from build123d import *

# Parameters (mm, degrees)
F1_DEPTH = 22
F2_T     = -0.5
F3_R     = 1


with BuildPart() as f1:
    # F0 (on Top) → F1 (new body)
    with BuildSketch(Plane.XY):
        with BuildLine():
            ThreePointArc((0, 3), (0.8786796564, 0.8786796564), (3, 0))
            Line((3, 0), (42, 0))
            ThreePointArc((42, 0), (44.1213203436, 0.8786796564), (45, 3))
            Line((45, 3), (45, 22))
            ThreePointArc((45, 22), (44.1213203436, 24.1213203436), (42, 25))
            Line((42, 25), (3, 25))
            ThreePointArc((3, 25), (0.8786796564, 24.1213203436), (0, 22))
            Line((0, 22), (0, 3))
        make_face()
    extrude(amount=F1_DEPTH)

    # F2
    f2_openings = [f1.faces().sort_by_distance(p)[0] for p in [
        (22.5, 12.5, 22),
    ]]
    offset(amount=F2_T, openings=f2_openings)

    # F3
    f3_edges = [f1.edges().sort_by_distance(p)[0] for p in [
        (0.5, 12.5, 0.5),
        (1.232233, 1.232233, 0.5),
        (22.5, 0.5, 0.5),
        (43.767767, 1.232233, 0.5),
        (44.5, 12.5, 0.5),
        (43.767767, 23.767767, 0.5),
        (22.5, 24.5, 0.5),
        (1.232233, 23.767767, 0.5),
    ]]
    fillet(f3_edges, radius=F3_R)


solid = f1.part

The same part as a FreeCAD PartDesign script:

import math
import FreeCAD as App
import Part
import Sketcher
Q = App.Units.Quantity


def edges_at(feature, points):
    """Names of the edges that pass closest to the given points."""
    edges = feature.Shape.Edges
    near = lambda p: min(range(len(edges)), key=lambda i: edges[i].distToShape(Part.Vertex(*p))[0])
    return sorted({f"Edge{near(p) + 1}" for p in points})


def faces_at(feature, points):
    """Names of the faces that lie closest to the given points."""
    faces = feature.Shape.Faces
    near = lambda p: min(range(len(faces)), key=lambda i: faces[i].distToShape(Part.Vertex(*p))[0])
    return sorted({f"Face{near(p) + 1}" for p in points})

doc = App.newDocument("Part")
body = doc.addObject("PartDesign::Body", "Body")

# Sketch on XY plane
sketch1 = body.newObject("Sketcher::SketchObject", "Sketch")
sketch1.AttachmentSupport = (doc.getObject("XY_Plane"), [""])
sketch1.MapMode = "FlatFace"
sketch1.addGeometry(Part.ArcOfCircle(Part.Circle(App.Vector(3, 3, 0), App.Vector(0, 0, 1), 3), math.radians(180), math.radians(270)), False)
sketch1.addGeometry(Part.LineSegment(App.Vector(3, 0, 0), App.Vector(42, 0, 0)), False)
sketch1.addGeometry(Part.ArcOfCircle(Part.Circle(App.Vector(42, 3, 0), App.Vector(0, 0, 1), 3), math.radians(-90), math.radians(0)), False)
sketch1.addGeometry(Part.LineSegment(App.Vector(45, 3, 0), App.Vector(45, 22, 0)), False)
sketch1.addGeometry(Part.ArcOfCircle(Part.Circle(App.Vector(42, 22, 0), App.Vector(0, 0, 1), 3), math.radians(0), math.radians(90)), False)
sketch1.addGeometry(Part.LineSegment(App.Vector(42, 25, 0), App.Vector(3, 25, 0)), False)
sketch1.addGeometry(Part.ArcOfCircle(Part.Circle(App.Vector(3, 22, 0), App.Vector(0, 0, 1), 3), math.radians(90), math.radians(180)), False)
sketch1.addGeometry(Part.LineSegment(App.Vector(0, 22, 0), App.Vector(0, 3, 0)), False)
sketch1.addConstraint(Sketcher.Constraint("Tangent", 0, 2, 1, 1))
sketch1.addConstraint(Sketcher.Constraint("Tangent", 1, 2, 2, 1))
sketch1.addConstraint(Sketcher.Constraint("Tangent", 2, 2, 3, 1))
sketch1.addConstraint(Sketcher.Constraint("Tangent", 3, 2, 4, 1))
sketch1.addConstraint(Sketcher.Constraint("Tangent", 4, 2, 5, 1))
sketch1.addConstraint(Sketcher.Constraint("Tangent", 5, 2, 6, 1))
sketch1.addConstraint(Sketcher.Constraint("Tangent", 6, 2, 7, 1))
sketch1.addConstraint(Sketcher.Constraint("Tangent", 7, 2, 0, 1))
sketch1.addConstraint(Sketcher.Constraint("Horizontal", 1))
sketch1.addConstraint(Sketcher.Constraint("Vertical", 3))
sketch1.addConstraint(Sketcher.Constraint("Horizontal", 5))
sketch1.addConstraint(Sketcher.Constraint("Vertical", 7))
sketch1.addConstraint(Sketcher.Constraint("Equal", 0, 2))
sketch1.addConstraint(Sketcher.Constraint("Equal", 2, 4))
sketch1.addConstraint(Sketcher.Constraint("Equal", 4, 6))
sketch1.addConstraint(Sketcher.Constraint("PointOnObject", 0, 2, -1))
sketch1.addConstraint(Sketcher.Constraint("PointOnObject", 6, 2, -2))
sketch1.addConstraint(Sketcher.Constraint("Radius", 0, Q("3 mm")))
sketch1.addConstraint(Sketcher.Constraint("DistanceX", 1, 1, 1, 2, Q("39 mm")))
sketch1.addConstraint(Sketcher.Constraint("DistanceY", 3, 1, 3, 2, Q("19 mm")))
pad1 = body.newObject("PartDesign::Pad", "Pad")
pad1.Profile = sketch1
pad1.Length = 22
doc.recompute()

thickness = body.newObject("PartDesign::Thickness", "Thickness")
thickness.Base = (pad1, faces_at(pad1, [(22.5, 12.5, 22)]))
thickness.Value = 0.5
thickness.Reversed = True
thickness.Join = "Arc"
doc.recompute()

fillet = body.newObject("PartDesign::Fillet", "Fillet")
fillet.Base = (thickness, edges_at(thickness, [
    (0.5, 12.5, 0.5),
    (1.232, 1.232, 0.5),
    (22.5, 0.5, 0.5),
    (43.768, 1.232, 0.5),
    (44.5, 12.5, 0.5),
    (43.768, 23.768, 0.5),
    (22.5, 24.5, 0.5),
    (1.232, 23.768, 0.5),
]))
fillet.Radius = 1

doc.recompute()
